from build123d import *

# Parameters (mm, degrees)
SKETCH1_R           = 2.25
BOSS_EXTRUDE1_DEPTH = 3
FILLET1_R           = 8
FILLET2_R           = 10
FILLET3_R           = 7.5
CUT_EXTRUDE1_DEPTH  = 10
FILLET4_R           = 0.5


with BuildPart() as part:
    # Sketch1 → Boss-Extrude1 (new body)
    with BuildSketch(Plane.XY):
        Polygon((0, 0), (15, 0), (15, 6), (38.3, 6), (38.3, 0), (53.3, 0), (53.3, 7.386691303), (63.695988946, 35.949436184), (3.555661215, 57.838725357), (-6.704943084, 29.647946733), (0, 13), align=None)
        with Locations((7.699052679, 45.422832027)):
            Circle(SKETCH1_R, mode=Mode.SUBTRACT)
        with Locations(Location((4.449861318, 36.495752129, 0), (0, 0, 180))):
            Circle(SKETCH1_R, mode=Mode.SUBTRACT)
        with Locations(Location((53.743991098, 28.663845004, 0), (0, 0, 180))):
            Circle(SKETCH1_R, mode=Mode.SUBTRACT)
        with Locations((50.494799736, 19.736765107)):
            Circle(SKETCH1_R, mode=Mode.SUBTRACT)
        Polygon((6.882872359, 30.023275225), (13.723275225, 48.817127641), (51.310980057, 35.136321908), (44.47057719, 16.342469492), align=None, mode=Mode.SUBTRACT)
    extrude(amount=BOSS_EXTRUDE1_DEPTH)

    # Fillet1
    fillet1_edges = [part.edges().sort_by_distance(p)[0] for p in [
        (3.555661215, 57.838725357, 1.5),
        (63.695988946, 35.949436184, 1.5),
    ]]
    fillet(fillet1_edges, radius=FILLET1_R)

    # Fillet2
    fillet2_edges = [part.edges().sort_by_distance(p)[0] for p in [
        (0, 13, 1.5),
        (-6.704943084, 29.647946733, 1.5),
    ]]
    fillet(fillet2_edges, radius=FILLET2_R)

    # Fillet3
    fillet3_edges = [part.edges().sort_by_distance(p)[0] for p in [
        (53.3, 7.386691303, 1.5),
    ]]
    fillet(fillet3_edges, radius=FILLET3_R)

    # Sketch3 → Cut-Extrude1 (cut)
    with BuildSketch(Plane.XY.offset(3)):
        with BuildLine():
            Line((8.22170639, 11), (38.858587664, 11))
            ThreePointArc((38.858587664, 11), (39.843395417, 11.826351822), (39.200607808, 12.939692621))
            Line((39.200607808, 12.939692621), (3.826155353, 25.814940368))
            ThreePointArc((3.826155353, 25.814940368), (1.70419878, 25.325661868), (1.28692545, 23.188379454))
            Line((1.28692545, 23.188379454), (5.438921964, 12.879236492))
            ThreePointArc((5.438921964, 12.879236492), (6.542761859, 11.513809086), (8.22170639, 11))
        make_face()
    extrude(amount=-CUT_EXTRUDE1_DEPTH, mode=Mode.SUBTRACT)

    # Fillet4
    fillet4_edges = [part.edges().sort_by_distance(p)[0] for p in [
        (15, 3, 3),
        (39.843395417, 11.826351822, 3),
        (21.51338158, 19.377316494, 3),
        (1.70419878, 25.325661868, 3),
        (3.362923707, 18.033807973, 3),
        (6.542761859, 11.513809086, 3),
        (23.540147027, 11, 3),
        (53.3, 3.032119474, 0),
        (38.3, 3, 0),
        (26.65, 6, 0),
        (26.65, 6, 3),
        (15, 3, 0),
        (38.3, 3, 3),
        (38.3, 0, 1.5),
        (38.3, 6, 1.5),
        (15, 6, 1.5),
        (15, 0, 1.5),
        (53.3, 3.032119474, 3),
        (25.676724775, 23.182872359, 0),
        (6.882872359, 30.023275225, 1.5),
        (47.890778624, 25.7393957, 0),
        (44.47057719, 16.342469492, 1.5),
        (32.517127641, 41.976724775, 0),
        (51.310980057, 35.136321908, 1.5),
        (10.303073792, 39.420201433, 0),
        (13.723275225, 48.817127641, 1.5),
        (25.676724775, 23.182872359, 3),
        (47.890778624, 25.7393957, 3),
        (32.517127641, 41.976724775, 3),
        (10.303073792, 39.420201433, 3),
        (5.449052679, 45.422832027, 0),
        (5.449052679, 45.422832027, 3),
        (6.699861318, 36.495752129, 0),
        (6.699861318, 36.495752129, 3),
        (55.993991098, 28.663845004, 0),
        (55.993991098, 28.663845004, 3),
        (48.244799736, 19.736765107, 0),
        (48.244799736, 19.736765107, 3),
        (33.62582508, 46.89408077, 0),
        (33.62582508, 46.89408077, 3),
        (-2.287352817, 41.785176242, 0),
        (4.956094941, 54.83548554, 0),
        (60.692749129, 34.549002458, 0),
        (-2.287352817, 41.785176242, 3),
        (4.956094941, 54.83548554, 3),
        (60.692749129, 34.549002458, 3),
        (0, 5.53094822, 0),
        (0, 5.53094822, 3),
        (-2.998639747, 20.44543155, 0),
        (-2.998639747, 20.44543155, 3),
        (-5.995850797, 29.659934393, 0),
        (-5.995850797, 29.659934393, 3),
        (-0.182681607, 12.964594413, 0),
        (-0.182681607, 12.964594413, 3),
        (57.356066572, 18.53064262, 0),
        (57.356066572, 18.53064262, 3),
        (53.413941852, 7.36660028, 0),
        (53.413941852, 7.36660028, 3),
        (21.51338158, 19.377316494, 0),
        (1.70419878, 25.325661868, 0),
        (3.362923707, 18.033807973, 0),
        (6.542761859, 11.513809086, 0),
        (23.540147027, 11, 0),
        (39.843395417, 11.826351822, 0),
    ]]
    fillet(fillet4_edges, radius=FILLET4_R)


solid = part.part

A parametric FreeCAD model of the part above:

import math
import FreeCAD as App
import Part
import Sketcher

V = App.Vector
Q = App.Units.Quantity


def edges_at(feature, points):
    """Names of the edges that pass closest to the given points."""
    edges = feature.Shape.Edges
    near = lambda p: min(range(len(edges)), key=lambda i: edges[i].distToShape(Part.Vertex(*p))[0])
    return sorted({f"Edge{near(p) + 1}" for p in points})


def add_polygon(sketch, points):
    """Adds a closed chain of lines whose ends are joined by coincident constraints."""
    first, n = sketch.GeometryCount, len(points)
    for a, b in zip(points, points[1:] + points[:1]):
        sketch.addGeometry(Part.LineSegment(App.Vector(*a, 0), App.Vector(*b, 0)), False)
    for i in range(n):
        sketch.addConstraint(Sketcher.Constraint("Coincident", first + i, 2, first + (i + 1) % n, 1))

doc = App.newDocument("Part")
body = doc.addObject("PartDesign::Body", "Body")

# Sketch on XY plane
sketch1 = body.newObject("Sketcher::SketchObject", "Sketch")
sketch1.AttachmentSupport = (doc.getObject("XY_Plane"), [""])
sketch1.MapMode = "FlatFace"
add_polygon(sketch1, [(0, 0), (15, 0), (15, 6), (38.3, 6), (38.3, 0), (53.3, 0), (53.3, 7.4), (63.7, 35.9), (3.6, 57.8), (-6.7, 29.6), (0, 13)])  # lines 0-10
sketch1.addGeometry(Part.Circle(V(50.5, 19.7, 0), V(0, 0, 1), 2.2), False)  # 11
sketch1.addGeometry(Part.Circle(V(53.7, 28.7, 0), V(0, 0, 1), 2.2), False)  # 12
sketch1.addGeometry(Part.Circle(V(4.4, 36.5, 0), V(0, 0, 1), 2.2), False)  # 13
add_polygon(sketch1, [(44.5, 16.3), (6.9, 30), (13.7, 48.8), (51.3, 35.1)])  # lines 14-17
sketch1.addGeometry(Part.Circle(V(7.7, 45.4, 0), V(0, 0, 1), 2.2), False)  # 18
sketch1.addConstraint([
    Sketcher.Constraint("Horizontal", 0),
    Sketcher.Constraint("Vertical", 1),
    Sketcher.Constraint("Horizontal", 2),
    Sketcher.Constraint("Vertical", 3),
    Sketcher.Constraint("Horizontal", 4),
    Sketcher.Constraint("Vertical", 5),
    Sketcher.Constraint("Vertical", 10),
    Sketcher.Constraint("Coincident", 10, 2, -1, 1),
    Sketcher.Constraint("Equal", 11, 12),
    Sketcher.Constraint("Equal", 12, 13),
    Sketcher.Constraint("Equal", 13, 18),
    Sketcher.Constraint("PointOnObject", 3, 2, -1),
    Sketcher.Constraint("Perpendicular", 6, 7),
    Sketcher.Constraint("Perpendicular", 7, 8),
    Sketcher.Constraint("Perpendicular", 8, 14),
    Sketcher.Constraint("Perpendicular", 14, 15),
    Sketcher.Constraint("Perpendicular", 15, 16),
    Sketcher.Constraint("Perpendicular", 16, 17),
    Sketcher.Constraint("Equal", 0, 4),
    Sketcher.Constraint("Diameter", 11, 4.5),
    Sketcher.Constraint("DistanceX", 0, 1, 0, 2, 15.0),
    Sketcher.Constraint("DistanceY", 1, 1, 1, 2, 6.0),
    Sketcher.Constraint("DistanceY", 10, 2, 10, 1, 13.0),
    Sketcher.Constraint("Angle", 6, Q("70 deg")),
    Sketcher.Constraint("Distance", 7, 64.0),
    Sketcher.Constraint("Distance", 8, 30.0),
    Sketcher.Constraint("Distance", 14, 40.0),
    Sketcher.Constraint("Distance", 15, 20.0),
    Sketcher.Constraint("DistanceX", 2, 1, 2, 2, 23.3),
    Sketcher.Constraint("DistanceY", 5, 1, 5, 2, 7.386691),
    Sketcher.Constraint("DistanceX", -1, 1, 11, 3, 50.4948),
    Sketcher.Constraint("DistanceX", 7, 2, 13, 3, 0.8942),
    Sketcher.Constraint("Distance", 6, 30.395838),
    Sketcher.Constraint("DistanceX", -1, 1, 12, 3, 53.743991),
    Sketcher.Constraint("DistanceX", -1, 1, 16, 2, 51.31098),
    Sketcher.Constraint("DistanceY", -1, 1, 16, 2, 35.136322),
    Sketcher.Constraint("DistanceY", 11, 3, 12, 3, 8.92708),
    Sketcher.Constraint("DistanceX", 13, 3, 18, 3, 3.249191),
    Sketcher.Constraint("DistanceY", 13, 3, 18, 3, 8.92708),
    Sketcher.Constraint("DistanceY", 12, 3, 6, 2, 7.285591),
    Sketcher.Constraint("DistanceY", -1, 1, 13, 3, 36.495752),
])
pad1 = body.newObject("PartDesign::Pad", "Pad")
pad1.Profile = sketch1
pad1.Length = 3
doc.recompute()

fillet = body.newObject("PartDesign::Fillet", "Fillet")
fillet.Base = (pad1, edges_at(pad1, [(3.556, 57.839, 1.5), (63.696, 35.949, 1.5)]))
fillet.Radius = 8
doc.recompute()

fillet2 = body.newObject("PartDesign::Fillet", "Fillet001")
fillet2.Base = (fillet, edges_at(fillet, [(0, 13, 1.5), (-6.705, 29.648, 1.5)]))
fillet2.Radius = 10
doc.recompute()

fillet3 = body.newObject("PartDesign::Fillet", "Fillet002")
fillet3.Base = (fillet2, edges_at(fillet2, [(53.3, 7.387, 1.5)]))
fillet3.Radius = 7.5

# Sketch on XY plane
sketch2 = body.newObject("Sketcher::SketchObject", "Sketch001")
sketch2.AttachmentSupport = (doc.getObject("XY_Plane"), [""])
sketch2.MapMode = "FlatFace"
sketch2.AttachmentOffset = App.Placement(V(0, 0, 3), App.Rotation())
sketch2.addGeometry([
    Part.LineSegment(V(8.2, 11, 0), V(38.9, 11, 0)),  # 0
    Part.ArcOfCircle(Part.Circle(V(38.9, 12, 0), V(0, 0, 1), 1), math.radians(-90), math.radians(70)),  # 1
    Part.LineSegment(V(39.2, 12.9, 0), V(3.8, 25.8, 0)),  # 2
    Part.ArcOfCircle(Part.Circle(V(3.1, 23.9, 0), V(0, 0, 1), 2), math.radians(70), math.radians(202)),  # 3
    Part.LineSegment(V(1.3, 23.2, 0), V(5.4, 12.9, 0)),  # 4
    Part.ArcOfCircle(Part.Circle(V(8.2, 14, 0), V(0, 0, 1), 3), math.radians(-158), math.radians(-90)),  # 5
], False)
sketch2.addConstraint([
    Sketcher.Constraint("Tangent", 0, 2, 1, 1),
    Sketcher.Constraint("Tangent", 1, 2, 2, 1),
    Sketcher.Constraint("Tangent", 2, 2, 3, 1),
    Sketcher.Constraint("Tangent", 3, 2, 4, 1),
    Sketcher.Constraint("Tangent", 4, 2, 5, 1),
    Sketcher.Constraint("Tangent", 5, 2, 0, 1),
    Sketcher.Constraint("Horizontal", 0),
    Sketcher.Constraint("Radius", 1, 1.0),
    Sketcher.Constraint("Radius", 3, 2.0),
    Sketcher.Constraint("Radius", 5, 3.0),
    Sketcher.Constraint("Angle", 2, Q("160 deg")),
    Sketcher.Constraint("DistanceY", -1, 1, 1, 3, 12.0),
    Sketcher.Constraint("DistanceX", 0, 1, 0, 2, 30.636881),
    Sketcher.Constraint("DistanceY", -1, 1, 2, 2, 25.81494),
    Sketcher.Constraint("DistanceX", -1, 1, 4, 2, 5.438922),
])
pocket1 = body.newObject("PartDesign::Pocket", "Pocket")
pocket1.Profile = sketch2
pocket1.Length = 10
doc.recompute()

fillet4 = body.newObject("PartDesign::Fillet", "Fillet003")
fillet4.Base = (pocket1, edges_at(pocket1, [
    (15, 3, 3),
    (39.843, 11.826, 3),
    (21.513, 19.377, 3),
    (1.704, 25.326, 3),
    (3.363, 18.034, 3),
    (6.543, 11.514, 3),
    (23.54, 11, 3),
    (53.3, 3.032, 0),
    (38.3, 3, 0),
    (26.65, 6, 0),
    (26.65, 6, 3),
    (15, 3, 0),
    (38.3, 3, 3),
    (38.3, 0, 1.5),
    (38.3, 6, 1.5),
    (15, 6, 1.5),
    (15, 0, 1.5),
    (53.3, 3.032, 3),
    (25.677, 23.183, 0),
    (6.883, 30.023, 1.5),
    (47.891, 25.739, 0),
    (44.471, 16.342, 1.5),
    (32.517, 41.977, 0),
    (51.311, 35.136, 1.5),
    (10.303, 39.42, 0),
    (13.723, 48.817, 1.5),
    (25.677, 23.183, 3),
    (47.891, 25.739, 3),
    (32.517, 41.977, 3),
    (10.303, 39.42, 3),
    (5.449, 45.423, 0),
    (5.449, 45.423, 3),
    (6.7, 36.496, 0),
    (6.7, 36.496, 3),
    (55.994, 28.664, 0),
    (55.994, 28.664, 3),
    (48.245, 19.737, 0),
    (48.245, 19.737, 3),
    (33.626, 46.894, 0),
    (33.626, 46.894, 3),
    (-2.287, 41.785, 0),
    (4.956, 54.835, 0),
    (60.693, 34.549, 0),
    (-2.287, 41.785, 3),
    (4.956, 54.835, 3),
    (60.693, 34.549, 3),
    (0, 5.531, 0),
    (0, 5.531, 3),
    (-2.999, 20.445, 0),
    (-2.999, 20.445, 3),
    (-5.996, 29.66, 0),
    (-5.996, 29.66, 3),
    (-0.183, 12.965, 0),
    (-0.183, 12.965, 3),
    (57.356, 18.531, 0),
    (57.356, 18.531, 3),
    (53.414, 7.367, 0),
    (53.414, 7.367, 3),
    (21.513, 19.377, 0),
    (1.704, 25.326, 0),
    (3.363, 18.034, 0),
    (6.543, 11.514, 0),
    (23.54, 11, 0),
    (39.843, 11.826, 0),
]))
fillet4.Radius = 0.5

doc.recompute()
